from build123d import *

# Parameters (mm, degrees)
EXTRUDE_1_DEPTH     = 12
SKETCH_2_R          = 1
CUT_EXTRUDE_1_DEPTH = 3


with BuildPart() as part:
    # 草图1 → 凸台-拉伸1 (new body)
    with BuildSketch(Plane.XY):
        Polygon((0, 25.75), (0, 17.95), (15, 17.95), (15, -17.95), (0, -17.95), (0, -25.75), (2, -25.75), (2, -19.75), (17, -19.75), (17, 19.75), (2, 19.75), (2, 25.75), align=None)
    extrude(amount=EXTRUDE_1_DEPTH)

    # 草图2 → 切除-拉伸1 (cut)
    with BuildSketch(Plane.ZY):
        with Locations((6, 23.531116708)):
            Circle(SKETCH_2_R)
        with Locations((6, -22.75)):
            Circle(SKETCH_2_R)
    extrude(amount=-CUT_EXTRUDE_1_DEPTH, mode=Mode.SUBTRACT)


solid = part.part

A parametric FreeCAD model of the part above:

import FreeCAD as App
import Part
import Sketcher
from FreeCAD import Vector

doc = App.newDocument("Part")
body = doc.addObject("PartDesign::Body", "Body")

# Sketch on XY plane
sketch1 = body.newObject("Sketcher::SketchObject", "Sketch")
sketch1.AttachmentSupport = (doc.getObject("XY_Plane"), [""])
sketch1.MapMode = "FlatFace"
sketch1.addGeometry(Part.LineSegment(Vector(0, 25.8, 0), Vector(0, 17.9, 0)), False)
sketch1.addGeometry(Part.LineSegment(Vector(0, 17.9, 0), Vector(15, 17.9, 0)), False)
sketch1.addGeometry(Part.LineSegment(Vector(15, 17.9, 0), Vector(15, -17.9, 0)), False)
sketch1.addGeometry(Part.LineSegment(Vector(15, -17.9, 0), Vector(0, -17.9, 0)), False)
sketch1.addGeometry(Part.LineSegment(Vector(0, -17.9, 0), Vector(0, -25.8, 0)), False)
sketch1.addGeometry(Part.LineSegment(Vector(0, -25.8, 0), Vector(2, -25.8, 0)), False)
sketch1.addGeometry(Part.LineSegment(Vector(2, -25.8, 0), Vector(2, -19.8, 0)), False)
sketch1.addGeometry(Part.LineSegment(Vector(2, -19.8, 0), Vector(17, -19.8, 0)), False)
sketch1.addGeometry(Part.LineSegment(Vector(17, -19.8, 0), Vector(17, 19.8, 0)), False)
sketch1.addGeometry(Part.LineSegment(Vector(17, 19.8, 0), Vector(2, 19.8, 0)), False)
sketch1.addGeometry(Part.LineSegment(Vector(2, 19.8, 0), Vector(2, 25.8, 0)), False)
sketch1.addGeometry(Part.LineSegment(Vector(2, 25.8, 0), Vector(0, 25.8, 0)), False)
sketch1.addConstraint(Sketcher.Constraint("Coincident", 0, 2, 1, 1))
sketch1.addConstraint(Sketcher.Constraint("Coincident", 1, 2, 2, 1))
sketch1.addConstraint(Sketcher.Constraint("Coincident", 2, 2, 3, 1))
sketch1.addConstraint(Sketcher.Constraint("Coincident", 3, 2, 4, 1))
sketch1.addConstraint(Sketcher.Constraint("Coincident", 4, 2, 5, 1))
sketch1.addConstraint(Sketcher.Constraint("Coincident", 5, 2, 6, 1))
sketch1.addConstraint(Sketcher.Constraint("Coincident", 6, 2, 7, 1))
sketch1.addConstraint(Sketcher.Constraint("Coincident", 7, 2, 8, 1))
sketch1.addConstraint(Sketcher.Constraint("Coincident", 8, 2, 9, 1))
sketch1.addConstraint(Sketcher.Constraint("Coincident", 9, 2, 10, 1))
sketch1.addConstraint(Sketcher.Constraint("Coincident", 10, 2, 11, 1))
sketch1.addConstraint(Sketcher.Constraint("Coincident", 11, 2, 0, 1))
sketch1.addConstraint(Sketcher.Constraint("Vertical", 0))
sketch1.addConstraint(Sketcher.Constraint("Horizontal", 1))
sketch1.addConstraint(Sketcher.Constraint("Vertical", 2))
sketch1.addConstraint(Sketcher.Constraint("Horizontal", 3))
sketch1.addConstraint(Sketcher.Constraint("Vertical", 4))
sketch1.addConstraint(Sketcher.Constraint("Horizontal", 5))
sketch1.addConstraint(Sketcher.Constraint("Vertical", 6))
sketch1.addConstraint(Sketcher.Constraint("Horizontal", 7))
sketch1.addConstraint(Sketcher.Constraint("Vertical", 8))
sketch1.addConstraint(Sketcher.Constraint("Horizontal", 9))
sketch1.addConstraint(Sketcher.Constraint("Vertical", 10))
sketch1.addConstraint(Sketcher.Constraint("Horizontal", 11))
sketch1.addConstraint(Sketcher.Constraint("Symmetric", 0, 2, 3, 2, -1, 1))
sketch1.addConstraint(Sketcher.Constraint("Symmetric", 6, 2, 9, 2, -1))
sketch1.addConstraint(Sketcher.Constraint("Symmetric", 4, 2, 11, 2, -1))
sketch1.addConstraint(Sketcher.Constraint("Equal", 3, 7))
sketch1.addConstraint(Sketcher.Constraint("DistanceX", 1, 1, 1, 2, 15.0))
sketch1.addConstraint(Sketcher.Constraint("DistanceX", 5, 1, 5, 2, 2.0))
sketch1.addConstraint(Sketcher.Constraint("DistanceY", 6, 1, 6, 2, 6.0))
sketch1.addConstraint(Sketcher.Constraint("DistanceY", 0, 2, 0, 1, 7.8))
sketch1.addConstraint(Sketcher.Constraint("DistanceY", 2, 2, 2, 1, 35.9))
pad1 = body.newObject("PartDesign::Pad", "Pad")
pad1.Profile = sketch1
pad1.Length = 12

# Sketch on YZ plane
sketch2 = body.newObject("Sketcher::SketchObject", "Sketch001")
sketch2.AttachmentSupport = (doc.getObject("YZ_Plane"), [""])
sketch2.MapMode = "FlatFace"
sketch2.addGeometry(Part.Circle(Vector(23.5, 6, 0), Vector(0, 0, 1), 1), False)
sketch2.addGeometry(Part.Circle(Vector(-22.8, 6, 0), Vector(0, 0, 1), 1), False)
sketch2.addConstraint(Sketcher.Constraint("Equal", 0, 1))
sketch2.addConstraint(Sketcher.Constraint("Horizontal", 0, 3, 1, 3))
sketch2.addConstraint(Sketcher.Constraint("Diameter", 0, 2.0))
sketch2.addConstraint(Sketcher.Constraint("DistanceY", -1, 1, 0, 3, 6.0))
sketch2.addConstraint(Sketcher.Constraint("DistanceX", 1, 3, -1, 1, 22.75))
sketch2.addConstraint(Sketcher.Constraint("DistanceX", -1, 1, 0, 3, 23.531117))
pocket1 = body.newObject("PartDesign::Pocket", "Pocket")
pocket1.Profile = sketch2
pocket1.Length = 3
pocket1.Reversed = True

doc.recompute()
